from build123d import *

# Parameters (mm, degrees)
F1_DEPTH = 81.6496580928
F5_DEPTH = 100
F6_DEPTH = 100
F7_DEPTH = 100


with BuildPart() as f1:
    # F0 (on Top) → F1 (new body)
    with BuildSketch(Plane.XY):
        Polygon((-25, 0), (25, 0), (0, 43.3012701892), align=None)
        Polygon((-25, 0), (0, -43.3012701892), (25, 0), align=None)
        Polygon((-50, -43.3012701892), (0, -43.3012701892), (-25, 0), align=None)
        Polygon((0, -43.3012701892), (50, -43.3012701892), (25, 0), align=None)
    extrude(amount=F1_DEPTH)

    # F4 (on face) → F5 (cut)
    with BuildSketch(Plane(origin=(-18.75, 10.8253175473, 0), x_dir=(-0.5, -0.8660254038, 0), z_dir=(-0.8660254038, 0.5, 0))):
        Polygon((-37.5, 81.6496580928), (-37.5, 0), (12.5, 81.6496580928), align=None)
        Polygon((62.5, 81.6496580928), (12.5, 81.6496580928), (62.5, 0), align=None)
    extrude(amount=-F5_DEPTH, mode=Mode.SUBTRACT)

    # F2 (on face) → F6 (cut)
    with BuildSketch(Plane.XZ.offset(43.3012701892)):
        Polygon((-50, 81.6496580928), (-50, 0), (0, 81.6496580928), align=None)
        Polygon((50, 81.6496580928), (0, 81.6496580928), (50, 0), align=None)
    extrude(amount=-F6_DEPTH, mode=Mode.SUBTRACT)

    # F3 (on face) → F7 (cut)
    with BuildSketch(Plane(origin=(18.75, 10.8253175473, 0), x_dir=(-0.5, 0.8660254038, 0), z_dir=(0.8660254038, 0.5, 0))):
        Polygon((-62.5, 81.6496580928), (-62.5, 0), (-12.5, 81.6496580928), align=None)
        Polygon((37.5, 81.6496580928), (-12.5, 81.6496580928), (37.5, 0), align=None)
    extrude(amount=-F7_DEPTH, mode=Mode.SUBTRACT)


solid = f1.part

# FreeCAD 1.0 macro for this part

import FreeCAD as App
import Part
import Sketcher
from FreeCAD import Vector
Q = App.Units.Quantity


def add_polygon(sketch, points):
    """Adds a closed chain of lines whose ends are joined by coincident constraints."""
    first, n = sketch.GeometryCount, len(points)
    for a, b in zip(points, points[1:] + points[:1]):
        sketch.addGeometry(Part.LineSegment(App.Vector(*a, 0), App.Vector(*b, 0)), False)
    for i in range(n):
        sketch.addConstraint(Sketcher.Constraint("Coincident", first + i, 2, first + (i + 1) % n, 1))

doc = App.newDocument("Part")
body = doc.addObject("PartDesign::Body", "Body")

# Sketch on XY plane
sketch1 = body.newObject("Sketcher::SketchObject", "Sketch")
sketch1.AttachmentSupport = (doc.getObject("XY_Plane"), [""])
sketch1.MapMode = "FlatFace"
add_polygon(sketch1, [(0, 43.30127), (-50, -43.30127), (50, -43.30127)])  # lines 0-2
sketch1.addConstraint(Sketcher.Constraint("Horizontal", 1))
sketch1.addConstraint(Sketcher.Constraint("PointOnObject", 2, 2, -2))
sketch1.addConstraint(Sketcher.Constraint("Equal", 0, 2))
sketch1.addConstraint(Sketcher.Constraint("DistanceX", 1, 1, 1, 2, 100.0))
sketch1.addConstraint(Sketcher.Constraint("Angle", 0, Q("-120 deg")))
sketch1.addConstraint(Sketcher.Constraint("DistanceY", 0, 2, -1, 1, 43.30127))
pad1 = body.newObject("PartDesign::Pad", "Pad")
pad1.Profile = sketch1
pad1.Length = 81.649658

# Sketch on an angled plane
sketch2 = body.newObject("Sketcher::SketchObject", "Sketch001")
sketch2.Placement = App.Placement(Vector(-18.75, 10.825318, 0), App.Rotation(Vector(-0.5, -0.866025404, 0), Vector(0, 0, 1), Vector(-0.866025404, 0.5, 0), "ZXY"))
add_polygon(sketch2, [(-37.5, 81.649658), (-37.5, 0), (12.5, 81.649658)])  # lines 0-2
add_polygon(sketch2, [(62.5, 81.649658), (12.5, 81.649658), (62.5, 0)])  # lines 3-5
sketch2.addConstraint(Sketcher.Constraint("Vertical", 0))
sketch2.addConstraint(Sketcher.Constraint("Horizontal", 2))
sketch2.addConstraint(Sketcher.Constraint("Horizontal", 3))
sketch2.addConstraint(Sketcher.Constraint("Vertical", 5))
sketch2.addConstraint(Sketcher.Constraint("Coincident", 3, 2, 1, 2))
sketch2.addConstraint(Sketcher.Constraint("PointOnObject", 0, 2, -1))
sketch2.addConstraint(Sketcher.Constraint("PointOnObject", 4, 2, -1))
sketch2.addConstraint(Sketcher.Constraint("Equal", 2, 3))
sketch2.addConstraint(Sketcher.Constraint("DistanceX", 2, 2, 2, 1, 50.0))
sketch2.addConstraint(Sketcher.Constraint("DistanceX", 0, 2, -1, 1, 37.5))
sketch2.addConstraint(Sketcher.Constraint("DistanceY", 0, 2, 0, 1, 81.649658))
pocket1 = body.newObject("PartDesign::Pocket", "Pocket")
pocket1.Profile = sketch2
pocket1.Length = 100

# Sketch on XZ plane
sketch3 = body.newObject("Sketcher::SketchObject", "Sketch002")
sketch3.AttachmentSupport = (doc.getObject("XZ_Plane"), [""])
sketch3.MapMode = "FlatFace"
sketch3.AttachmentOffset = App.Placement(Vector(0, 0, 43.30127), App.Rotation())
add_polygon(sketch3, [(-50, 81.649658), (-50, 0), (0, 81.649658)])  # lines 0-2
add_polygon(sketch3, [(50, 81.649658), (0, 81.649658), (50, 0)])  # lines 3-5
sketch3.addConstraint(Sketcher.Constraint("Vertical", 0))
sketch3.addConstraint(Sketcher.Constraint("Horizontal", 2))
sketch3.addConstraint(Sketcher.Constraint("Horizontal", 3))
sketch3.addConstraint(Sketcher.Constraint("Vertical", 5))
sketch3.addConstraint(Sketcher.Constraint("Coincident", 3, 2, 1, 2))
sketch3.addConstraint(Sketcher.Constraint("Symmetric", 0, 2, 4, 2, -1, 1))
sketch3.addConstraint(Sketcher.Constraint("PointOnObject", 0, 2, -1))
sketch3.addConstraint(Sketcher.Constraint("PointOnObject", 1, 2, -2))
sketch3.addConstraint(Sketcher.Constraint("DistanceX", 2, 2, 2, 1, 50.0))
sketch3.addConstraint(Sketcher.Constraint("DistanceY", 0, 2, 0, 1, 81.649658))
pocket2 = body.newObject("PartDesign::Pocket", "Pocket001")
pocket2.Profile = sketch3
pocket2.Length = 100

# Sketch on an angled plane
sketch4 = body.newObject("Sketcher::SketchObject", "Sketch003")
sketch4.Placement = App.Placement(Vector(18.75, 10.825318, 0), App.Rotation(Vector(-0.5, 0.866025404, 0), Vector(0, 0, 1), Vector(0.866025404, 0.5, 0), "ZXY"))
add_polygon(sketch4, [(-62.5, 81.649658), (-62.5, 0), (-12.5, 81.649658)])  # lines 0-2
add_polygon(sketch4, [(37.5, 81.649658), (-12.5, 81.649658), (37.5, 0)])  # lines 3-5
sketch4.addConstraint(Sketcher.Constraint("Vertical", 0))
sketch4.addConstraint(Sketcher.Constraint("Horizontal", 2))
sketch4.addConstraint(Sketcher.Constraint("Horizontal", 3))
sketch4.addConstraint(Sketcher.Constraint("Vertical", 5))
sketch4.addConstraint(Sketcher.Constraint("Coincident", 3, 2, 1, 2))
sketch4.addConstraint(Sketcher.Constraint("PointOnObject", 0, 2, -1))
sketch4.addConstraint(Sketcher.Constraint("PointOnObject", 4, 2, -1))
sketch4.addConstraint(Sketcher.Constraint("Equal", 2, 3))
sketch4.addConstraint(Sketcher.Constraint("DistanceX", 2, 2, 2, 1, 50.0))
sketch4.addConstraint(Sketcher.Constraint("DistanceX", 0, 2, -1, 1, 62.5))
sketch4.addConstraint(Sketcher.Constraint("DistanceY", 0, 2, 0, 1, 81.649658))
pocket3 = body.newObject("PartDesign::Pocket", "Pocket002")
pocket3.Profile = sketch4
pocket3.Length = 100

doc.recompute()
